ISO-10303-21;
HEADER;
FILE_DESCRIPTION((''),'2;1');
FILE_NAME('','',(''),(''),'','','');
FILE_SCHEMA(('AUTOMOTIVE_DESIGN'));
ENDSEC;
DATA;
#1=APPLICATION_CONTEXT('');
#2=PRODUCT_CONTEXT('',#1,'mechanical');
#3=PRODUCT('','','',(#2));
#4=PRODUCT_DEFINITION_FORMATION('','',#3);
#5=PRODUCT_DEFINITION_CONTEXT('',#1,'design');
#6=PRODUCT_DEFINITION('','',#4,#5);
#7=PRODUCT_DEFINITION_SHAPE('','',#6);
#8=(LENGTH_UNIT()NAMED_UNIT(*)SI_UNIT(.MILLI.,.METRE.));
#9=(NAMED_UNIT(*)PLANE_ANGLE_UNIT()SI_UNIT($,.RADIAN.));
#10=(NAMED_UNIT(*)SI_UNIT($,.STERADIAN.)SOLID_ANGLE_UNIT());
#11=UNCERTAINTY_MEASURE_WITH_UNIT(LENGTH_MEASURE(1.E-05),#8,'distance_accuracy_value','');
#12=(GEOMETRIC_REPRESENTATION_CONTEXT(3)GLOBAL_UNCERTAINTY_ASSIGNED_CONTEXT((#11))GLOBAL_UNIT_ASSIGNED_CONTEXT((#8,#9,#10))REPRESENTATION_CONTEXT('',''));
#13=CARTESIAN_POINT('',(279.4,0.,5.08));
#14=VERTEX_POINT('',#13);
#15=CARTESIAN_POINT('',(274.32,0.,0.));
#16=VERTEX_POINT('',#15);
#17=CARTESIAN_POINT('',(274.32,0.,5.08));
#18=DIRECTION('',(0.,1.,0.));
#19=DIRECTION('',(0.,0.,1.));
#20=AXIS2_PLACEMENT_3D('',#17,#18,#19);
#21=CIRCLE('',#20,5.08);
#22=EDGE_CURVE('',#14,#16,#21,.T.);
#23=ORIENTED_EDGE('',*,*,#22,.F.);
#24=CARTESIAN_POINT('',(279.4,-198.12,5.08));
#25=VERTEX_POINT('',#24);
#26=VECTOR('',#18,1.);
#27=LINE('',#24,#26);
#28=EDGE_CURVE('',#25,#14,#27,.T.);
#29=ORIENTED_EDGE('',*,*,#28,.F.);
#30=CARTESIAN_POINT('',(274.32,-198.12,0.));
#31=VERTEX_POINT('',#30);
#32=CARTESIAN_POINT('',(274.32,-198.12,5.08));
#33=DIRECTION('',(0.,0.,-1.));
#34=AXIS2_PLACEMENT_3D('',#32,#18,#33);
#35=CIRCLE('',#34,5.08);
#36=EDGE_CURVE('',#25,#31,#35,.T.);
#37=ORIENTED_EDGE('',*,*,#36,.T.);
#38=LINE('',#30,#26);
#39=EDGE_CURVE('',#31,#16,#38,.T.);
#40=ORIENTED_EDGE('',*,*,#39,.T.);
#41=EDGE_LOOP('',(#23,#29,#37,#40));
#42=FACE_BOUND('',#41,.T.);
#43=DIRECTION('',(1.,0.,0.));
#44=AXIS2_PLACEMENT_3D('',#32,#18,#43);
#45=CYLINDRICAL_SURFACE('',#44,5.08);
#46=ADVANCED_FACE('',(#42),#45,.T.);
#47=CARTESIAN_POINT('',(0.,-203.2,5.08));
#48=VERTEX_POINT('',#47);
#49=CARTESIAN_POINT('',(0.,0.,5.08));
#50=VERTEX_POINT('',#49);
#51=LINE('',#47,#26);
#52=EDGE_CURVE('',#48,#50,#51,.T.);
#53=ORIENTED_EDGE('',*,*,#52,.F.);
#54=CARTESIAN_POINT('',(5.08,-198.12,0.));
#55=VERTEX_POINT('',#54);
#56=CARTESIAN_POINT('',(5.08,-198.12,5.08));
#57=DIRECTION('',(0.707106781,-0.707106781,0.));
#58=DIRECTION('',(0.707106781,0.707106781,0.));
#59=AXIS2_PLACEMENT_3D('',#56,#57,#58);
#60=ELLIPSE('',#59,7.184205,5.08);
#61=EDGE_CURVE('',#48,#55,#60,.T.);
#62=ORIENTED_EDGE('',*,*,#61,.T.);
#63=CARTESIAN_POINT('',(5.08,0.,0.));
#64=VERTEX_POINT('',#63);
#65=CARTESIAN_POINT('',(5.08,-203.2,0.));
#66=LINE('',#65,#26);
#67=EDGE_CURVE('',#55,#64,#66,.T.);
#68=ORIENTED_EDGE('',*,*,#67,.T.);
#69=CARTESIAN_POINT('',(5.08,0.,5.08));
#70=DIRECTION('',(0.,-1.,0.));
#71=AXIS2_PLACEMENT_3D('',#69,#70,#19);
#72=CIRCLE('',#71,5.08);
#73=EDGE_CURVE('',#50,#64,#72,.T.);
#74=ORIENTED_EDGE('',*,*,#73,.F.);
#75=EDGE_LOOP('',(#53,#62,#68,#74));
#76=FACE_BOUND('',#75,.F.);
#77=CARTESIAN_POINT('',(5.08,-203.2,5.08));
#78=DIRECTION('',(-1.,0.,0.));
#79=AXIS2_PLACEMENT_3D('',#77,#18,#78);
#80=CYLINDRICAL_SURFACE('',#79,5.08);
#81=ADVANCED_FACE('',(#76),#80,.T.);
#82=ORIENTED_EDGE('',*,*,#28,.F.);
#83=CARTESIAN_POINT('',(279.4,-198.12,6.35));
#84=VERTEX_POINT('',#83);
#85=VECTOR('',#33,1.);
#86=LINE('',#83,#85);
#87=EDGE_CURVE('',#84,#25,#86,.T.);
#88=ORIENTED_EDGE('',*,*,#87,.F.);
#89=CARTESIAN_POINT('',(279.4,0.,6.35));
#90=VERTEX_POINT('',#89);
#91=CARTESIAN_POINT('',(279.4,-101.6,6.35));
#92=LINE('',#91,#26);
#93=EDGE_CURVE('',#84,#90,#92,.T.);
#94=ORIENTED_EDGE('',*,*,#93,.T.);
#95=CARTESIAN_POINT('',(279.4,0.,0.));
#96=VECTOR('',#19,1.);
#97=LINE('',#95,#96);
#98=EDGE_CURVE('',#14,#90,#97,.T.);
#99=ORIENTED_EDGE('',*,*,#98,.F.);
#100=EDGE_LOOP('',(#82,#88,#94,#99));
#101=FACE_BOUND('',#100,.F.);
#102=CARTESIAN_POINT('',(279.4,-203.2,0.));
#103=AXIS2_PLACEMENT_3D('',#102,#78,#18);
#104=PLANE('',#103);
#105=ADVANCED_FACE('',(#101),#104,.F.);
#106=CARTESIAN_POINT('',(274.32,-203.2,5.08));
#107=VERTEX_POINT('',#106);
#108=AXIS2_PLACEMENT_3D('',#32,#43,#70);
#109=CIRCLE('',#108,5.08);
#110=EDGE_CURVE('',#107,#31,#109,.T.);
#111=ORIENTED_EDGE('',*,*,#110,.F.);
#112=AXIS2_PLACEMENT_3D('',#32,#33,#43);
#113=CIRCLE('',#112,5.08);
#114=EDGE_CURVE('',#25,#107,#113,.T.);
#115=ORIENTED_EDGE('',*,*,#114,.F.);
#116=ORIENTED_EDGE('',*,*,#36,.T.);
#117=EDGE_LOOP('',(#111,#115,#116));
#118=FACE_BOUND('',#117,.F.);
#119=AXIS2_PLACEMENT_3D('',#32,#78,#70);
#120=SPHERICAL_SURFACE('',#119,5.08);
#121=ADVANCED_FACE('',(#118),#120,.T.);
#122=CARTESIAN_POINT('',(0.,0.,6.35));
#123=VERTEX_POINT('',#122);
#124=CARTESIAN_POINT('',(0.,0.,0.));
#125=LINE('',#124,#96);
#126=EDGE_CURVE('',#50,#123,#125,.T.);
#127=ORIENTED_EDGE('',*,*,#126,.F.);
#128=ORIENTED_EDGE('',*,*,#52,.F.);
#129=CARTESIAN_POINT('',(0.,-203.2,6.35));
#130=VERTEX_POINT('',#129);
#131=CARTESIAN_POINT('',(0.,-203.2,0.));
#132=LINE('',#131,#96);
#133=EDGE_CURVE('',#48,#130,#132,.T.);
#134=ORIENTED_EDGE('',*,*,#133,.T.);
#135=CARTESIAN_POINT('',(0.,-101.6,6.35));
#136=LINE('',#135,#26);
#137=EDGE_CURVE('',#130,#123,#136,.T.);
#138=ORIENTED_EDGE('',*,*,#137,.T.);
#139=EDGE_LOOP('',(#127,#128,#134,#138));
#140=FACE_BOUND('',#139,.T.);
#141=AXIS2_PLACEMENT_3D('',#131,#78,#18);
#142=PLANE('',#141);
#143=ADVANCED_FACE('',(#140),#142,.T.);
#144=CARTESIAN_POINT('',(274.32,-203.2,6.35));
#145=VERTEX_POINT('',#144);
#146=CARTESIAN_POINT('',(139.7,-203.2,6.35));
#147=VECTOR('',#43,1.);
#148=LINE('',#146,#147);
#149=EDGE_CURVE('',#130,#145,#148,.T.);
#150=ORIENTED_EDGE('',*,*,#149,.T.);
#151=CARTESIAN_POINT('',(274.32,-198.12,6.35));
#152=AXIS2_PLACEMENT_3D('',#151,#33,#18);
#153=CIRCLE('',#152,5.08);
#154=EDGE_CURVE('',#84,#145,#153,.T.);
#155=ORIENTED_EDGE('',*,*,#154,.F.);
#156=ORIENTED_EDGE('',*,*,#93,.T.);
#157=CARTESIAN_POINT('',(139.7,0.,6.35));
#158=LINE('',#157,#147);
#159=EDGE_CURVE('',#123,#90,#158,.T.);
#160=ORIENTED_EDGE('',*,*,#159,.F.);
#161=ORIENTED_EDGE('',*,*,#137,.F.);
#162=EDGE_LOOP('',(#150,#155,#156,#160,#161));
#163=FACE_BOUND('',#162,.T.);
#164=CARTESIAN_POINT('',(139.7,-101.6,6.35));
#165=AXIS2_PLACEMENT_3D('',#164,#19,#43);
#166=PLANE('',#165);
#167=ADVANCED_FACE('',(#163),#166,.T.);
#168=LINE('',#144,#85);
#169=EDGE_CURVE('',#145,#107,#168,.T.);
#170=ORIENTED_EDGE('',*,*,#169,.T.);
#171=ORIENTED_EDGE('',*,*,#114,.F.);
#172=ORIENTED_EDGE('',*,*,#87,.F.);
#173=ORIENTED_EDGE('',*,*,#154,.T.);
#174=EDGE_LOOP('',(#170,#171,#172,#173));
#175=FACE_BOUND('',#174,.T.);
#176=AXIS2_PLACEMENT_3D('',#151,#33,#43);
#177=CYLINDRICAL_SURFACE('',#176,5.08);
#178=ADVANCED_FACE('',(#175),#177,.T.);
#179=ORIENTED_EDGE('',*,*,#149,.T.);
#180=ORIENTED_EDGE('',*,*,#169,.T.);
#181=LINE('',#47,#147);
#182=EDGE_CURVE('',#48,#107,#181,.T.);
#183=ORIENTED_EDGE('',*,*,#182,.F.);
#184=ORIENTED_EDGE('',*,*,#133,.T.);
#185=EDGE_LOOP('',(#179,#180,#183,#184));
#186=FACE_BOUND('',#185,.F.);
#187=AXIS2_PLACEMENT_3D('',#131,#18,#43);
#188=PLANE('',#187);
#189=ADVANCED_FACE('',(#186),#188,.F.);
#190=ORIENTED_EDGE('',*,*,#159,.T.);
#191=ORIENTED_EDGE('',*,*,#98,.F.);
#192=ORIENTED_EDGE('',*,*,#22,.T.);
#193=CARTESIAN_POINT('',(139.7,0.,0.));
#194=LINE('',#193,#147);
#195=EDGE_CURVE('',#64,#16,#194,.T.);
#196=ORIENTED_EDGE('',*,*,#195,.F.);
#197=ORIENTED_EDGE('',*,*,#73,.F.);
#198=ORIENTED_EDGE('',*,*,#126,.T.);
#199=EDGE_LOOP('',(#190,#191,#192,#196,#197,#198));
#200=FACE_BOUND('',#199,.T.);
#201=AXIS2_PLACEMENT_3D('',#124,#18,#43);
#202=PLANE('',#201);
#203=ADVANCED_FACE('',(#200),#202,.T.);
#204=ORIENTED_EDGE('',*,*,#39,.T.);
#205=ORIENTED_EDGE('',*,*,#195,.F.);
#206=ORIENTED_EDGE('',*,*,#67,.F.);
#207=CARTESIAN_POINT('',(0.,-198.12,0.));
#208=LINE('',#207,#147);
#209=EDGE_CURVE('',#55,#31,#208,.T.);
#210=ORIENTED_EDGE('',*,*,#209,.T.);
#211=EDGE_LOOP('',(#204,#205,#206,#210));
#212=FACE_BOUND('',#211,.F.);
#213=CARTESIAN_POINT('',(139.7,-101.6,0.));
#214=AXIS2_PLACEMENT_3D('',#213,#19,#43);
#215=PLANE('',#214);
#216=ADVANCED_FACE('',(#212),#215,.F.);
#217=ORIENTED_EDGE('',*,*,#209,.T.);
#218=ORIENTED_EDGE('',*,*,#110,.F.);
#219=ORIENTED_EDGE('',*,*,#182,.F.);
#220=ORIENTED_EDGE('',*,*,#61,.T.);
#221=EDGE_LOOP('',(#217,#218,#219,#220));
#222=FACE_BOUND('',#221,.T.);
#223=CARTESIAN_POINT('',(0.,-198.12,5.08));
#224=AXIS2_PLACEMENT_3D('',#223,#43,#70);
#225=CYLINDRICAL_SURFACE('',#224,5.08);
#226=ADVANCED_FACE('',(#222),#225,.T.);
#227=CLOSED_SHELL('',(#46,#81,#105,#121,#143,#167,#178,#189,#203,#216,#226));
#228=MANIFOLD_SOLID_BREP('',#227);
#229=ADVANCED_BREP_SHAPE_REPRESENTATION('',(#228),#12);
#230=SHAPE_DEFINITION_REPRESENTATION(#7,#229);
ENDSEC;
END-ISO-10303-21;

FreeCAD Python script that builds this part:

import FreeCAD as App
import Part
import Sketcher

V = App.Vector
Q = App.Units.Quantity


def edges_at(feature, points):
    """Names of the edges that pass closest to the given points."""
    edges = feature.Shape.Edges
    near = lambda p: min(range(len(edges)), key=lambda i: edges[i].distToShape(Part.Vertex(*p))[0])
    return sorted({f"Edge{near(p) + 1}" for p in points})

doc = App.newDocument("Part")
body = doc.addObject("PartDesign::Body", "Body")

# Sketch on XY plane
sketch1 = doc.addObject("Sketcher::SketchObject", "Sketch")
body.addObject(sketch1)
sketch1.AttachmentSupport = (doc.XY_Plane, [""])
sketch1.MapMode = "FlatFace"
sketch1.addGeometry([
    Part.LineSegment(V(0, 0, 0), V(0, -203, 0)),
    Part.LineSegment(V(0, -203, 0), V(279, -203, 0)),
    Part.LineSegment(V(279, -203, 0), V(279, 0, 0)),
    Part.LineSegment(V(279, 0, 0), V(0, 0, 0)),
], False)
sketch1.addConstraint([
    Sketcher.Constraint("Coincident", 0, 2, 1, 1),
    Sketcher.Constraint("Coincident", 1, 2, 2, 1),
    Sketcher.Constraint("Coincident", 2, 2, 3, 1),
    Sketcher.Constraint("Coincident", 3, 2, 0, 1),
    Sketcher.Constraint("Vertical", 0),
    Sketcher.Constraint("Horizontal", 1),
    Sketcher.Constraint("Vertical", 2),
    Sketcher.Constraint("Horizontal", 3),
    Sketcher.Constraint("Coincident", 3, 2, -1, 1),
    Sketcher.Constraint("DistanceX", 1, 1, 1, 2, Q("11 in")),
    Sketcher.Constraint("DistanceY", 0, 2, 0, 1, Q("8 in")),
])
pad1 = doc.addObject("PartDesign::Pad", "Pad")
body.addObject(pad1)
pad1.Profile = sketch1
pad1.Length = Q("0.25 in")
doc.recompute()

fillet = doc.addObject("PartDesign::Fillet", "Fillet")
body.addObject(fillet)
fillet.Base = (pad1, edges_at(pad1, [(139.7, -203.2, 0), (0, -101.6, 0)]))
fillet.Radius = Q("0.2 in")
doc.recompute()

fillet2 = doc.addObject("PartDesign::Fillet", "Fillet001")
body.addObject(fillet2)
fillet2.Base = (fillet, edges_at(fillet, [(279.4, -99.06, 0)]))
fillet2.Radius = Q("0.2 in")

doc.recompute()
